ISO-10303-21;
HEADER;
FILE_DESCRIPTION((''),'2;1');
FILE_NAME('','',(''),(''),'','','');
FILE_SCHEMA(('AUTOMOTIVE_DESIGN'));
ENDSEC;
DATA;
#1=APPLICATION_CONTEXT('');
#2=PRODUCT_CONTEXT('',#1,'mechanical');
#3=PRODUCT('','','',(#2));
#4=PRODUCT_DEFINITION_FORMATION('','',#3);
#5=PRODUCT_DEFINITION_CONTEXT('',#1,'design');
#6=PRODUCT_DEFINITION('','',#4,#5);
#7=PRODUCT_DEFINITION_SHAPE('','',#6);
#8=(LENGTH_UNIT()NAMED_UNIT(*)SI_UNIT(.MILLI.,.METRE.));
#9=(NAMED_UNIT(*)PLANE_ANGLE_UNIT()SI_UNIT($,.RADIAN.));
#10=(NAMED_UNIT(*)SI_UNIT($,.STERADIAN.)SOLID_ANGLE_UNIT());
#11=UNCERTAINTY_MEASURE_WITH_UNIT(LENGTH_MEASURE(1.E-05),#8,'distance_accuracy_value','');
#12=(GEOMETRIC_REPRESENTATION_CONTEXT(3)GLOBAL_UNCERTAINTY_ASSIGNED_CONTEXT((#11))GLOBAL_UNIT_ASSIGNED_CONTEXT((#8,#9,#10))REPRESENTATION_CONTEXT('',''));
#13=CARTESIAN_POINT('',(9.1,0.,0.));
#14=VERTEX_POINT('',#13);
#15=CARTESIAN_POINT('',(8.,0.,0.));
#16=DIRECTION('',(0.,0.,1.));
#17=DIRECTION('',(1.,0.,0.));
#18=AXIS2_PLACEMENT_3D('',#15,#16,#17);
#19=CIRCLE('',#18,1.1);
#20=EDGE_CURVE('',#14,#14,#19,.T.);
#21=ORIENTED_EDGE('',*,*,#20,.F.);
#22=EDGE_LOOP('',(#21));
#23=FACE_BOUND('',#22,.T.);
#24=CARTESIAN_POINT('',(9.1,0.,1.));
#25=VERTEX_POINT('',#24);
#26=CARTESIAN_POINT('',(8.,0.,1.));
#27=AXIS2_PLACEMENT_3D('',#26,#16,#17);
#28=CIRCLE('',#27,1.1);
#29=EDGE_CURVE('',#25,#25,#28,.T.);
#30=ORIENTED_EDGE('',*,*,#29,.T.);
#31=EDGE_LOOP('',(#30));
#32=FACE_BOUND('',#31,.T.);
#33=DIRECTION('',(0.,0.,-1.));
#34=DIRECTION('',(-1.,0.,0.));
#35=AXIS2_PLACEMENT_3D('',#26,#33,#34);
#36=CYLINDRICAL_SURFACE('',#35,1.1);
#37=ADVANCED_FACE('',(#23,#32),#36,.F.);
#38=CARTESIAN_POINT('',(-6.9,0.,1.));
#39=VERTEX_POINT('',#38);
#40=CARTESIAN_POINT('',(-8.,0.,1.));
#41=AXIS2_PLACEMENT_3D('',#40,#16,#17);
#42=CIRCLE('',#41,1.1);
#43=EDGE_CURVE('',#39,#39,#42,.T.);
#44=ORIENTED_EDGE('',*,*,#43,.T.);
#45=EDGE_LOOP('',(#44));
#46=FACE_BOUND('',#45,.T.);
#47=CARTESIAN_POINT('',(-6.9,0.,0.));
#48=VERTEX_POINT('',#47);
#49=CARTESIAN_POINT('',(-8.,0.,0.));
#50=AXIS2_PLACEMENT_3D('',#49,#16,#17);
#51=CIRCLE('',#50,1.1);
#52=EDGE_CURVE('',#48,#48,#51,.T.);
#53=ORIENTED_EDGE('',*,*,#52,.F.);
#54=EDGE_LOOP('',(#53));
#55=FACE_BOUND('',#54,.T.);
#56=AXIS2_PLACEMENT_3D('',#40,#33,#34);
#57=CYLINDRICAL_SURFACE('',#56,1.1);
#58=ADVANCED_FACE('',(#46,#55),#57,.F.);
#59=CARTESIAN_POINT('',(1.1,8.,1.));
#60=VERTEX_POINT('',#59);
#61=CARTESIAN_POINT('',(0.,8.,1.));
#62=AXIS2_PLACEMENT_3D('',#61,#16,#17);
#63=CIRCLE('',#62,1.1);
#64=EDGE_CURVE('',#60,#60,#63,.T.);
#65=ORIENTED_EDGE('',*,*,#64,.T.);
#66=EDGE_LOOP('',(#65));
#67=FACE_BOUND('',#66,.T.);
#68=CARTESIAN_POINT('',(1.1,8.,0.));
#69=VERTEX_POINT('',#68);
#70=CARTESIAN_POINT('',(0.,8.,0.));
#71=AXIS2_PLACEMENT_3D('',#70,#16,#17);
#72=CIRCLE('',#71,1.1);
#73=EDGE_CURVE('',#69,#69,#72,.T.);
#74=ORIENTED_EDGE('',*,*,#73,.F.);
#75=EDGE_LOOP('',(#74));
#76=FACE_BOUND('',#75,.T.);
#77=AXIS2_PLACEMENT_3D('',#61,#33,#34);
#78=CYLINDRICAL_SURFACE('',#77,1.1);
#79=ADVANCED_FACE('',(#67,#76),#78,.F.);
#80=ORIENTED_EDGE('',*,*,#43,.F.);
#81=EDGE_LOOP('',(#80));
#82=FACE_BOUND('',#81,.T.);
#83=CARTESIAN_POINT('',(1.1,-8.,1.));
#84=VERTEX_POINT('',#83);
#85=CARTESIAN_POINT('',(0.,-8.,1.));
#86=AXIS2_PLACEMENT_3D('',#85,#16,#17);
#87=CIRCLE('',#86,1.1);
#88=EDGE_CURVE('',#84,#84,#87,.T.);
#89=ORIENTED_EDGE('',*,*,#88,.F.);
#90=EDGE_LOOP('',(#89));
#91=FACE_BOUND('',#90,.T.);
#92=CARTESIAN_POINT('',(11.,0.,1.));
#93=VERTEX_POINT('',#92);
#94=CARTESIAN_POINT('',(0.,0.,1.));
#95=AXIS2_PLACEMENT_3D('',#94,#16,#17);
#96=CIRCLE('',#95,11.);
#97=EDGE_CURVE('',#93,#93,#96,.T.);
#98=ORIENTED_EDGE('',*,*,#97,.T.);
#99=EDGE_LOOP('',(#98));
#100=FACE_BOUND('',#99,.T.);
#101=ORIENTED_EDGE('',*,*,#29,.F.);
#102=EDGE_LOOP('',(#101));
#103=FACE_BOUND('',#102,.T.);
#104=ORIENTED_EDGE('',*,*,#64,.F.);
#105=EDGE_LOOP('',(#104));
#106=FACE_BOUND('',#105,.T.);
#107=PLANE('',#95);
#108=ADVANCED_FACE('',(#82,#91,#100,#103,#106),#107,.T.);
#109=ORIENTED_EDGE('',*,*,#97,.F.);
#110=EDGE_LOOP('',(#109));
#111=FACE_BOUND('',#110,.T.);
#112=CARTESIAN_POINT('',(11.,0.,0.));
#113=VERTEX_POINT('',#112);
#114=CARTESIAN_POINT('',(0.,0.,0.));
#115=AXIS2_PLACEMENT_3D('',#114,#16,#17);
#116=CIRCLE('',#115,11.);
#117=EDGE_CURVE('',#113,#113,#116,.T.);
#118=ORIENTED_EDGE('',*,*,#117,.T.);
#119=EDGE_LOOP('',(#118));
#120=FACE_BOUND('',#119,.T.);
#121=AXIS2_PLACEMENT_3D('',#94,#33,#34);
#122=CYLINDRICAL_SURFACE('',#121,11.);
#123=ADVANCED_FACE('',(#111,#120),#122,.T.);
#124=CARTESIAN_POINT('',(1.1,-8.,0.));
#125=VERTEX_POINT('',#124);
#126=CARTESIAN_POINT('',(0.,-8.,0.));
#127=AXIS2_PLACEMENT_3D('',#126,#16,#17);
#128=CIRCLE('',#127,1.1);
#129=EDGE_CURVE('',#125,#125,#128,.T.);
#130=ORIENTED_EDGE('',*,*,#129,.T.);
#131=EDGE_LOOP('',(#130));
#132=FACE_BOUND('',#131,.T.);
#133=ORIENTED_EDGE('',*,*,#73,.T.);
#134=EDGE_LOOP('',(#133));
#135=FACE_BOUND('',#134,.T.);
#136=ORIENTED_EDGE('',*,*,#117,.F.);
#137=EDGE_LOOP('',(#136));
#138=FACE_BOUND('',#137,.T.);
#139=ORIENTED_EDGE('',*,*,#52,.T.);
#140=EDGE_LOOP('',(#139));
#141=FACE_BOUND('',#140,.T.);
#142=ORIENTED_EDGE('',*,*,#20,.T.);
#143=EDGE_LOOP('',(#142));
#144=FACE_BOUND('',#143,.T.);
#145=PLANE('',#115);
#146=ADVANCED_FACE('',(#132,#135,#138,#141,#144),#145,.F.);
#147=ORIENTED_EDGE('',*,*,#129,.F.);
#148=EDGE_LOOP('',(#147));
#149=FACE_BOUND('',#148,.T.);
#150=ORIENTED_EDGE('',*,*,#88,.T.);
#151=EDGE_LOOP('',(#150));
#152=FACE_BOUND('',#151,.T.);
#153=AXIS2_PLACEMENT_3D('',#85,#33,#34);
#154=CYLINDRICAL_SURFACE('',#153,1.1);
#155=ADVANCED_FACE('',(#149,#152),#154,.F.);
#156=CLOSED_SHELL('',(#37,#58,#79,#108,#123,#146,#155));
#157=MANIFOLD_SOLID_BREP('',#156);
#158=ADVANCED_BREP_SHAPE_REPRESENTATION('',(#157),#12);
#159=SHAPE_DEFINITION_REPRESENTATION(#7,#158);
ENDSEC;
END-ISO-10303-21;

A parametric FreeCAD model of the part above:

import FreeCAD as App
import Part
import Sketcher

V = App.Vector
Q = App.Units.Quantity

doc = App.newDocument("Part")
body = doc.addObject("PartDesign::Body", "Body")

# Sketch on XY plane
sketch1 = doc.addObject("Sketcher::SketchObject", "Sketch")
body.addObject(sketch1)
sketch1.AttachmentSupport = (doc.XY_Plane, [""])
sketch1.MapMode = "FlatFace"
sketch1.addGeometry(Part.Circle(V(0, 0, 0), V(0, 0, 1), 11), False)
sketch1.addGeometry(Part.Circle(V(-8, 0, 0), V(0, 0, 1), 1.1), False)
sketch1.addGeometry(Part.Circle(V(0, -8, 0), V(0, 0, 1), 1.1), False)
sketch1.addGeometry(Part.Circle(V(8, 0, 0), V(0, 0, 1), 1.1), False)
sketch1.addGeometry(Part.Circle(V(0, 8, 0), V(0, 0, 1), 1.1), False)
sketch1.addConstraint(Sketcher.Constraint("Coincident", 0, 3, -1, 1))
sketch1.addConstraint(Sketcher.Constraint("Equal", 1, 2))
sketch1.addConstraint(Sketcher.Constraint("Equal", 2, 3))
sketch1.addConstraint(Sketcher.Constraint("Equal", 3, 4))
sketch1.addConstraint(Sketcher.Constraint("Symmetric", 1, 3, 3, 3, -1, 1))
sketch1.addConstraint(Sketcher.Constraint("Symmetric", 2, 3, 4, 3, -1, 1))
sketch1.addConstraint(Sketcher.Constraint("PointOnObject", 1, 3, -1))
sketch1.addConstraint(Sketcher.Constraint("PointOnObject", 2, 3, -2))
sketch1.addConstraint(Sketcher.Constraint("Diameter", 0, Q("22 mm")))
sketch1.addConstraint(Sketcher.Constraint("Diameter", 1, Q("2.2 mm")))
sketch1.addConstraint(Sketcher.Constraint("DistanceX", 1, 3, -1, 1, Q("8 mm")))
sketch1.addConstraint(Sketcher.Constraint("DistanceY", 2, 3, -1, 1, Q("8 mm")))
pad1 = doc.addObject("PartDesign::Pad", "Pad")
body.addObject(pad1)
pad1.Profile = sketch1
pad1.Length = 1

doc.recompute()
